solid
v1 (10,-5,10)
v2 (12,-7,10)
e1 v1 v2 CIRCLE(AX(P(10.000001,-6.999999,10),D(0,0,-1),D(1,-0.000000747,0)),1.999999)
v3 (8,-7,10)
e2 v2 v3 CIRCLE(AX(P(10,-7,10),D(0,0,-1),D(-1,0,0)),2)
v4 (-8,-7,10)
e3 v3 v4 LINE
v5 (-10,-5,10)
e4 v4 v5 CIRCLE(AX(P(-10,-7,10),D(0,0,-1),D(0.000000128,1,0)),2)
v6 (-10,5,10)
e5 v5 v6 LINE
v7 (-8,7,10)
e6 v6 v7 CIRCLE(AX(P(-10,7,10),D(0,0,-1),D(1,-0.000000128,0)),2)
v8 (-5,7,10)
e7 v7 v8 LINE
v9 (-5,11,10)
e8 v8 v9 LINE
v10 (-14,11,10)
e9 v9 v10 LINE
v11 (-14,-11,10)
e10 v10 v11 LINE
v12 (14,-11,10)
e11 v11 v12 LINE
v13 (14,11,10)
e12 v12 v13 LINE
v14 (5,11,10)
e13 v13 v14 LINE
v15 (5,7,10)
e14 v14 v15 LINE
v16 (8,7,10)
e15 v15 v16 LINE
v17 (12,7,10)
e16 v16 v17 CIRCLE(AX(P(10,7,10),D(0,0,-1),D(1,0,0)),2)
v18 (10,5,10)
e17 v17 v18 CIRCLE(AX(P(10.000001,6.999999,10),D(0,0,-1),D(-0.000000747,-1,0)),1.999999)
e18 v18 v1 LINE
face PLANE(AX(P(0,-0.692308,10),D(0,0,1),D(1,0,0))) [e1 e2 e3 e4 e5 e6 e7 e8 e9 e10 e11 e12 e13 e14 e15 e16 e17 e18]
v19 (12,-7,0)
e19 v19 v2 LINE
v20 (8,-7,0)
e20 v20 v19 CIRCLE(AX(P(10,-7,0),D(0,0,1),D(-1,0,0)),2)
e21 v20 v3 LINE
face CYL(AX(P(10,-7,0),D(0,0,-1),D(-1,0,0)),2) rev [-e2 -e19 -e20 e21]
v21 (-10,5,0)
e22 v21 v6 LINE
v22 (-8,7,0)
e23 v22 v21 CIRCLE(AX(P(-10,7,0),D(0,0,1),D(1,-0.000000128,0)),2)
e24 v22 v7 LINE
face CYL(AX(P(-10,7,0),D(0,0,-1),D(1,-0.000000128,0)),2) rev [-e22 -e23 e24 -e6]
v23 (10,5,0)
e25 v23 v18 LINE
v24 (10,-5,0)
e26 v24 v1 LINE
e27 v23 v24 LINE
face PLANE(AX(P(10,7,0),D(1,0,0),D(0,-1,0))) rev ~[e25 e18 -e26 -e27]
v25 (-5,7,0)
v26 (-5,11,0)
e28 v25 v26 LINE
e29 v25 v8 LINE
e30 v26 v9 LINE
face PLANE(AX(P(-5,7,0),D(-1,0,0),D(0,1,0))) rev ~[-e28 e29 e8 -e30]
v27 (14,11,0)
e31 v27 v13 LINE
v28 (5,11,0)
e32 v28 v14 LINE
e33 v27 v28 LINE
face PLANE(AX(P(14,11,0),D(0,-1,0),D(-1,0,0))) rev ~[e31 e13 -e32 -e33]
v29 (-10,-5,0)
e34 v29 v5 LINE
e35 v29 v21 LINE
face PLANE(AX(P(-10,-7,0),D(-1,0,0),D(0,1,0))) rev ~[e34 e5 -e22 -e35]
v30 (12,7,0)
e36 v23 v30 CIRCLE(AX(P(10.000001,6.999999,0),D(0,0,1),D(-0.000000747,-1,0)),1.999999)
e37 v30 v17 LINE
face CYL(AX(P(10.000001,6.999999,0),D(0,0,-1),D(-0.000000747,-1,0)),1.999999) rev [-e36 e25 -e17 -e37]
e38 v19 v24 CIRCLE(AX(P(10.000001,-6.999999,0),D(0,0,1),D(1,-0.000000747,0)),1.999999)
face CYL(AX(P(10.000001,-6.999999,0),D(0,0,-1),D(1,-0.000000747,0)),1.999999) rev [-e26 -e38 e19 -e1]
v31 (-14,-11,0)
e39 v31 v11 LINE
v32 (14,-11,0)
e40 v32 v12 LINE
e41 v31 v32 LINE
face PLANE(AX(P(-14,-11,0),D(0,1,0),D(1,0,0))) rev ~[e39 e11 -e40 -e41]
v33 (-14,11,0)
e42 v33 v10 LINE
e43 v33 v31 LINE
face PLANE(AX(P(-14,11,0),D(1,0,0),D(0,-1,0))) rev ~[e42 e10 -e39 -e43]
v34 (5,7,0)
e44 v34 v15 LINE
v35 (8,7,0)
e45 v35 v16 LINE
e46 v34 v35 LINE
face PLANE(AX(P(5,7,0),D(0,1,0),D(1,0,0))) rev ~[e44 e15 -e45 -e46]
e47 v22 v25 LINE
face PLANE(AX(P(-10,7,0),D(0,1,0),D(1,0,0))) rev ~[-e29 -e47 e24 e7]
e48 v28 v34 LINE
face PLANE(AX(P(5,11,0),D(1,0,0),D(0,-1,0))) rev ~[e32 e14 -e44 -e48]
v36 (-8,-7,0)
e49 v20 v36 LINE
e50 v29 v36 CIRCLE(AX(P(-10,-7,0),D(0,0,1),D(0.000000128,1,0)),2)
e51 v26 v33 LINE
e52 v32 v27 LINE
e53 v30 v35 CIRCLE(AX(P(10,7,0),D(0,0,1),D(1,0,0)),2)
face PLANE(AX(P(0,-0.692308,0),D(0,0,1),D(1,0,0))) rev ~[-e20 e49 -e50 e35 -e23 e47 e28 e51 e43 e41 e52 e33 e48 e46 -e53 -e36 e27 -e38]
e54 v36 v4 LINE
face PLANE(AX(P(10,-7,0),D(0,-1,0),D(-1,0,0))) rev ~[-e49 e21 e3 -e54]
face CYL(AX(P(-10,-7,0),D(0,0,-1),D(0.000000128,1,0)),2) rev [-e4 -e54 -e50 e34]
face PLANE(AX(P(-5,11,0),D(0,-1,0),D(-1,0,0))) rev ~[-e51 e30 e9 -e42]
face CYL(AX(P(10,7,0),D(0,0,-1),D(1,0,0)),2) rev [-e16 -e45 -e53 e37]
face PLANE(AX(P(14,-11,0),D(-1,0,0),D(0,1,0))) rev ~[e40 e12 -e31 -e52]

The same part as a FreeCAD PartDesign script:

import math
import FreeCAD as App
import Part
import Sketcher
from FreeCAD import Vector
Q = App.Units.Quantity

doc = App.newDocument("Part")
params = doc.addObject("Spreadsheet::Sheet", "Params")
for row, (alias, value) in enumerate([
    ("sketch1_width", "20 mm"),
    ("sketch1_width2", "5 mm"),
    ("sketch1_width3", "9 mm"),
    ("sketch1_height", "14 mm"),
    ("sketch1_height2", "4 mm"),
    ("pad1_length", "10 mm"),
    ("sketch2_radius", "2 mm"),
], start=1):
    params.set(f"A{row}", alias)
    params.set(f"B{row}", "=" + value)
    params.setAlias(f"B{row}", alias)

body = doc.addObject("PartDesign::Body", "Body")

# Sketch on XY plane
sketch1 = body.newObject("Sketcher::SketchObject", "Sketch")
sketch1.AttachmentSupport = (doc.getObject("XY_Plane"), [""])
sketch1.MapMode = "FlatFace"
sketch1.addGeometry([
    Part.LineSegment(Vector(10, 7, 0), Vector(10, -7, 0)),  # 0
    Part.LineSegment(Vector(10, -7, 0), Vector(-10, -7, 0)),  # 1
    Part.LineSegment(Vector(-10, -7, 0), Vector(-10, 7, 0)),  # 2
    Part.LineSegment(Vector(-10, 7, 0), Vector(-5, 7, 0)),  # 3
    Part.LineSegment(Vector(-5, 7, 0), Vector(-5, 11, 0)),  # 4
    Part.LineSegment(Vector(-5, 11, 0), Vector(-14, 11, 0)),  # 5
    Part.LineSegment(Vector(-14, 11, 0), Vector(-14, -11, 0)),  # 6
    Part.LineSegment(Vector(-14, -11, 0), Vector(14, -11, 0)),  # 7
    Part.LineSegment(Vector(14, -11, 0), Vector(14, 11, 0)),  # 8
    Part.LineSegment(Vector(14, 11, 0), Vector(5, 11, 0)),  # 9
    Part.LineSegment(Vector(5, 11, 0), Vector(5, 7, 0)),  # 10
    Part.LineSegment(Vector(5, 7, 0), Vector(10, 7, 0)),  # 11
], False)
sketch1.addConstraint([
    Sketcher.Constraint("Coincident", 0, 2, 1, 1),
    Sketcher.Constraint("Coincident", 1, 2, 2, 1),
    Sketcher.Constraint("Coincident", 2, 2, 3, 1),
    Sketcher.Constraint("Coincident", 3, 2, 4, 1),
    Sketcher.Constraint("Coincident", 4, 2, 5, 1),
    Sketcher.Constraint("Coincident", 5, 2, 6, 1),
    Sketcher.Constraint("Coincident", 6, 2, 7, 1),
    Sketcher.Constraint("Coincident", 7, 2, 8, 1),
    Sketcher.Constraint("Coincident", 8, 2, 9, 1),
    Sketcher.Constraint("Coincident", 9, 2, 10, 1),
    Sketcher.Constraint("Coincident", 10, 2, 11, 1),
    Sketcher.Constraint("Coincident", 11, 2, 0, 1),
    Sketcher.Constraint("Vertical", 0),
    Sketcher.Constraint("Horizontal", 1),
    Sketcher.Constraint("Vertical", 2),
    Sketcher.Constraint("Horizontal", 3),
    Sketcher.Constraint("Vertical", 4),
    Sketcher.Constraint("Horizontal", 5),
    Sketcher.Constraint("Vertical", 6),
    Sketcher.Constraint("Horizontal", 7),
    Sketcher.Constraint("Vertical", 8),
    Sketcher.Constraint("Horizontal", 9),
    Sketcher.Constraint("Vertical", 10),
    Sketcher.Constraint("Horizontal", 11),
    Sketcher.Constraint("Symmetric", 0, 2, 2, 2, -1, 1),
    Sketcher.Constraint("Symmetric", 5, 2, 7, 2, -1, 1),
    Sketcher.Constraint("Symmetric", 4, 2, 9, 2, -2),
    Sketcher.Constraint("Horizontal", 3, 2, 10, 2),
    Sketcher.Constraint("DistanceX", 1, 2, 1, 1, Q("20 mm")),
    Sketcher.Constraint("DistanceX", 3, 1, 3, 2, Q("5 mm")),
    Sketcher.Constraint("DistanceX", 5, 2, 5, 1, Q("9 mm")),
    Sketcher.Constraint("DistanceY", 0, 2, 0, 1, Q("14 mm")),
    Sketcher.Constraint("DistanceY", 4, 1, 4, 2, Q("4 mm")),
])
sketch1.setExpression("Constraints[28]", "Params.sketch1_width")
sketch1.setExpression("Constraints[29]", "Params.sketch1_width2")
sketch1.setExpression("Constraints[30]", "Params.sketch1_width3")
sketch1.setExpression("Constraints[31]", "Params.sketch1_height")
sketch1.setExpression("Constraints[32]", "Params.sketch1_height2")
pad1 = body.newObject("PartDesign::Pad", "Pad")
pad1.Profile = sketch1
pad1.setExpression("Length", "Params.pad1_length")

# Sketch on XY plane
sketch2 = body.newObject("Sketcher::SketchObject", "Sketch001")
sketch2.AttachmentSupport = (doc.getObject("XY_Plane"), [""])
sketch2.MapMode = "FlatFace"
sketch2.addGeometry([
    Part.ArcOfCircle(Part.Circle(Vector(-10, -7, 0), Vector(0, 0, 1), 2), math.radians(90), math.radians(360)),  # 0
    Part.ArcOfCircle(Part.Circle(Vector(-10, -7, 0), Vector(0, 0, 1), 2), math.radians(0), math.radians(90)),  # 1
    Part.ArcOfCircle(Part.Circle(Vector(-10, 7, 0), Vector(0, 0, 1), 2), math.radians(0), math.radians(270)),  # 2
    Part.ArcOfCircle(Part.Circle(Vector(-10, 7, 0), Vector(0, 0, 1), 2), math.radians(-90), math.radians(0)),  # 3
    Part.ArcOfCircle(Part.Circle(Vector(10, 7, 0), Vector(0, 0, 1), 2), math.radians(180), math.radians(270)),  # 4
    Part.ArcOfCircle(Part.Circle(Vector(10, 7, 0), Vector(0, 0, 1), 2), math.radians(-90), math.radians(0)),  # 5
    Part.ArcOfCircle(Part.Circle(Vector(10, 7, 0), Vector(0, 0, 1), 2), math.radians(0), math.radians(180)),  # 6
    Part.ArcOfCircle(Part.Circle(Vector(10, -7, 0), Vector(0, 0, 1), 2), math.radians(90), math.radians(180)),  # 7
    Part.ArcOfCircle(Part.Circle(Vector(10, -7, 0), Vector(0, 0, 1), 2), math.radians(180), math.radians(360)),  # 8
    Part.ArcOfCircle(Part.Circle(Vector(10, -7, 0), Vector(0, 0, 1), 2), math.radians(0), math.radians(90)),  # 9
], False)
sketch2.addConstraint([
    Sketcher.Constraint("Tangent", 0, 1, 1, 2),
    Sketcher.Constraint("Coincident", 1, 1, 0, 2),
    Sketcher.Constraint("Tangent", 2, 1, 3, 2),
    Sketcher.Constraint("Coincident", 3, 1, 2, 2),
    Sketcher.Constraint("Tangent", 4, 2, 5, 1),
    Sketcher.Constraint("Tangent", 5, 2, 6, 1),
    Sketcher.Constraint("Tangent", 6, 2, 4, 1),
    Sketcher.Constraint("Tangent", 7, 2, 8, 1),
    Sketcher.Constraint("Tangent", 8, 2, 9, 1),
    Sketcher.Constraint("Tangent", 9, 2, 7, 1),
    Sketcher.Constraint("Equal", 1, 2),
    Sketcher.Constraint("Equal", 3, 4),
    Sketcher.Constraint("Equal", 6, 7),
    Sketcher.Constraint("Symmetric", 0, 3, 4, 3, -1, 1),
    Sketcher.Constraint("Symmetric", 2, 3, 7, 3, -1, 1),
    Sketcher.Constraint("Symmetric", 2, 3, 4, 3, -2),
    Sketcher.Constraint("Horizontal", 9, 3, 1, 1),
    Sketcher.Constraint("Horizontal", 6, 3, 2, 1),
    Sketcher.Constraint("Horizontal", 2, 1, 5, 2),
    Sketcher.Constraint("Horizontal", 5, 2, 6, 2),
    Sketcher.Constraint("Horizontal", 1, 1, 7, 2),
    Sketcher.Constraint("Horizontal", 7, 2, 8, 2),
    Sketcher.Constraint("Vertical", 3, 3, 0, 1),
    Sketcher.Constraint("Vertical", 0, 1, 3, 1),
    Sketcher.Constraint("Vertical", 9, 3, 4, 2),
    Sketcher.Constraint("Vertical", 4, 2, 9, 2),
    Sketcher.Constraint("Radius", 0, Q("2 mm")),
    Sketcher.Constraint("DistanceX", 0, 3, -1, 1, Q("10 mm")),
    Sketcher.Constraint("DistanceY", 0, 3, -1, 1, Q("7 mm")),
])
sketch2.setExpression("Constraints[26]", "Params.sketch2_radius")
pocket1 = body.newObject("PartDesign::Pocket", "Pocket")
pocket1.Profile = sketch2
pocket1.Type = "ThroughAll"
pocket1.Reversed = True

doc.recompute()
